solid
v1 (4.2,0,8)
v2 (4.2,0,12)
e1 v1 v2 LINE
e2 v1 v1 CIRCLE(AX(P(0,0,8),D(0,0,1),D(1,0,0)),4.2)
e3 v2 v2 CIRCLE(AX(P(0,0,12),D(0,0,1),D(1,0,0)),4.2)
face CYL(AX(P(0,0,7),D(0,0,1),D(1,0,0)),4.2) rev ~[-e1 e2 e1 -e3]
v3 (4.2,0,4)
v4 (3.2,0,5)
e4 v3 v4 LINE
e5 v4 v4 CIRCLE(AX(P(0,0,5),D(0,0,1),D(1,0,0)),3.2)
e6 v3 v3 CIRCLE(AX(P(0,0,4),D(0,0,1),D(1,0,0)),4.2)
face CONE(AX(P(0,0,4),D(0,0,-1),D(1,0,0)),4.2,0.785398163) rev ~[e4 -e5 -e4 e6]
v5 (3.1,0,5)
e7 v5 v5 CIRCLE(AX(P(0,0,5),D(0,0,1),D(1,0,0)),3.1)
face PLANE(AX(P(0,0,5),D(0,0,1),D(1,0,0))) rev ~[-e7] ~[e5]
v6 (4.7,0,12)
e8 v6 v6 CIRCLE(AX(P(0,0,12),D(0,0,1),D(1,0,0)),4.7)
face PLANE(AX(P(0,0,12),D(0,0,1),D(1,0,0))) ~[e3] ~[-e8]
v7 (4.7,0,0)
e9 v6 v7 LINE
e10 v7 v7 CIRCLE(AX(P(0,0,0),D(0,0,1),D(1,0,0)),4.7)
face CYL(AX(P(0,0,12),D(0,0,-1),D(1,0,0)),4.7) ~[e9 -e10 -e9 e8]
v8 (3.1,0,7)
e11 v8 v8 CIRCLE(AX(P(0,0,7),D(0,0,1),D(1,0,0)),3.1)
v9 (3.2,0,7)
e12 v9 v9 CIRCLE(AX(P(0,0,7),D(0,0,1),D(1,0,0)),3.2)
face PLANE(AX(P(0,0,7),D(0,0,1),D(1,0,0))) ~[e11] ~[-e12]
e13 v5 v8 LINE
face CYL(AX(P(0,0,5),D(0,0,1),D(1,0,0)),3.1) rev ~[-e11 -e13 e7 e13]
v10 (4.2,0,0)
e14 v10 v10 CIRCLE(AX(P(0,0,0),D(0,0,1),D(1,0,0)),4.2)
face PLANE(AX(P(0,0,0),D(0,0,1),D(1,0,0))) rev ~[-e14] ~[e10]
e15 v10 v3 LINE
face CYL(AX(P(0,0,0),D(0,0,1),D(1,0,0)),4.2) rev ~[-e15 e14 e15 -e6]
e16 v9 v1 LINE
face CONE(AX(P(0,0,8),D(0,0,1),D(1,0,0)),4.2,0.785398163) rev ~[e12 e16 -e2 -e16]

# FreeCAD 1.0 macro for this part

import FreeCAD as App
import Part
import Sketcher


def edges_at(feature, points):
    """Names of the edges that pass closest to the given points."""
    edges = feature.Shape.Edges
    near = lambda p: min(range(len(edges)), key=lambda i: edges[i].distToShape(Part.Vertex(*p))[0])
    return sorted({f"Edge{near(p) + 1}" for p in points})


def add_polygon(sketch, points):
    """Adds a closed chain of lines whose ends are joined by coincident constraints."""
    first, n = sketch.GeometryCount, len(points)
    for a, b in zip(points, points[1:] + points[:1]):
        sketch.addGeometry(Part.LineSegment(App.Vector(*a, 0), App.Vector(*b, 0)), False)
    for i in range(n):
        sketch.addConstraint(Sketcher.Constraint("Coincident", first + i, 2, first + (i + 1) % n, 1))

doc = App.newDocument("Part")
body = doc.addObject("PartDesign::Body", "Body")

sketch1 = doc.addObject("Sketcher::SketchObject", "Sketch")
body.addObject(sketch1)
sketch1.AttachmentSupport = (doc.XZ_Plane, [""])
sketch1.MapMode = "FlatFace"
add_polygon(sketch1, [(4.2, 7), (3.1, 7), (3.1, 5), (4.2, 5), (4.2, 0), (4.7, 0), (4.7, 12), (4.2, 12)])
sketch1.addConstraint(Sketcher.Constraint("Horizontal", 0))
sketch1.addConstraint(Sketcher.Constraint("Vertical", 1))
sketch1.addConstraint(Sketcher.Constraint("Horizontal", 2))
sketch1.addConstraint(Sketcher.Constraint("Vertical", 3))
sketch1.addConstraint(Sketcher.Constraint("Horizontal", 4))
sketch1.addConstraint(Sketcher.Constraint("Vertical", 5))
sketch1.addConstraint(Sketcher.Constraint("Horizontal", 6))
sketch1.addConstraint(Sketcher.Constraint("Vertical", 7))
sketch1.addConstraint(Sketcher.Constraint("PointOnObject", 3, 2, -1))
sketch1.addConstraint(Sketcher.Constraint("Vertical", 3, 2, 6, 2))
sketch1.addConstraint(Sketcher.Constraint("Equal", 3, 7))
sketch1.addConstraint(Sketcher.Constraint("DistanceY", 1, 2, 1, 1, 2.0))
sketch1.addConstraint(Sketcher.Constraint("DistanceY", 3, 2, 3, 1, 5.0))
sketch1.addConstraint(Sketcher.Constraint("DistanceX", 0, 2, 0, 1, 1.1))
sketch1.addConstraint(Sketcher.Constraint("DistanceX", 4, 1, 4, 2, 0.5))
sketch1.addConstraint(Sketcher.Constraint("DistanceX", -1, 1, 0, 2, 3.1))
revolution = doc.addObject("PartDesign::Revolution", "Revolution")
body.addObject(revolution)
revolution.Profile = sketch1
revolution.ReferenceAxis = (sketch1, ["V_Axis"])
revolution.Angle = 360
doc.recompute()

chamfer = doc.addObject("PartDesign::Chamfer", "Chamfer")
body.addObject(chamfer)
chamfer.Base = (revolution, edges_at(revolution, [(-4.2, 0, 5), (-4.2, 0, 7)]))
chamfer.Size = 1

doc.recompute()
